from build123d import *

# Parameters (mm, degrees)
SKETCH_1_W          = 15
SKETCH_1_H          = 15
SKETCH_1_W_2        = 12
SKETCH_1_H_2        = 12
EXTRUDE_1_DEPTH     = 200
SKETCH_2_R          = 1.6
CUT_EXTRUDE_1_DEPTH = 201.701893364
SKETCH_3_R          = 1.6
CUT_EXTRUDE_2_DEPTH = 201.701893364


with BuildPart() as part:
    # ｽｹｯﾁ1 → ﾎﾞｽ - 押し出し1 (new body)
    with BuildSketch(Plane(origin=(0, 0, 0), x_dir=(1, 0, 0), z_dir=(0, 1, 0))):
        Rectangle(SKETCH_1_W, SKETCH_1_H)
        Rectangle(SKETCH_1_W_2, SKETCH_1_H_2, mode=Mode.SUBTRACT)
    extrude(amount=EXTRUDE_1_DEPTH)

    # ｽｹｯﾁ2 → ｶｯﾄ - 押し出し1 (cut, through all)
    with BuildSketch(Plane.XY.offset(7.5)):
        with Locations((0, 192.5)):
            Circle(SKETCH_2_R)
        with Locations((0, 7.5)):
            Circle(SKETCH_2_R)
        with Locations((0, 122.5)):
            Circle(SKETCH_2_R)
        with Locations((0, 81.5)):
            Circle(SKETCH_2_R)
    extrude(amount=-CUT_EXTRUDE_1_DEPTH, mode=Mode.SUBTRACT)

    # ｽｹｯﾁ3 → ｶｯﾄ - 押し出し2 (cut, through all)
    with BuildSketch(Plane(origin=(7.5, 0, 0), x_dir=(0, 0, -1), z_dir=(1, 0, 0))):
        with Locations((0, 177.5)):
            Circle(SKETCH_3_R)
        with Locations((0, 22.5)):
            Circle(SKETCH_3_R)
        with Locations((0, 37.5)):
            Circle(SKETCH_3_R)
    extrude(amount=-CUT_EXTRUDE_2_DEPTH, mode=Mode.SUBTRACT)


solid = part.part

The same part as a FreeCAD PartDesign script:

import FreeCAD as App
import Part
import Sketcher

V = App.Vector


def add_polygon(sketch, points):
    """Adds a closed chain of lines whose ends are joined by coincident constraints."""
    first, n = sketch.GeometryCount, len(points)
    for a, b in zip(points, points[1:] + points[:1]):
        sketch.addGeometry(Part.LineSegment(App.Vector(*a, 0), App.Vector(*b, 0)), False)
    for i in range(n):
        sketch.addConstraint(Sketcher.Constraint("Coincident", first + i, 2, first + (i + 1) % n, 1))

doc = App.newDocument("Part")
body = doc.addObject("PartDesign::Body", "Body")

# Sketch on XZ plane
sketch1 = body.newObject("Sketcher::SketchObject", "Sketch")
sketch1.AttachmentSupport = (doc.getObject("XZ_Plane"), [""])
sketch1.MapMode = "FlatFace"
add_polygon(sketch1, [(-8, -8), (-8, 8), (8, 8), (8, -8)])  # lines 0-3
add_polygon(sketch1, [(6, 6), (-6, 6), (-6, -6), (6, -6)])  # lines 4-7
sketch1.addConstraint([
    Sketcher.Constraint("Vertical", 0),
    Sketcher.Constraint("Horizontal", 1),
    Sketcher.Constraint("Vertical", 2),
    Sketcher.Constraint("Horizontal", 3),
    Sketcher.Constraint("Horizontal", 4),
    Sketcher.Constraint("Vertical", 5),
    Sketcher.Constraint("Horizontal", 6),
    Sketcher.Constraint("Vertical", 7),
    Sketcher.Constraint("Symmetric", 0, 2, 2, 2, -1, 1),
    Sketcher.Constraint("Symmetric", 4, 2, 6, 2, -1, 1),
    Sketcher.Constraint("Equal", 3, 0),
    Sketcher.Constraint("Equal", 6, 5),
    Sketcher.Constraint("DistanceX", 1, 1, 1, 2, 15.0),
    Sketcher.Constraint("DistanceX", 4, 2, 4, 1, 12.0),
])
pad1 = body.newObject("PartDesign::Pad", "Pad")
pad1.Profile = sketch1
pad1.Length = 200
pad1.Reversed = True

# Sketch on XY plane
sketch2 = body.newObject("Sketcher::SketchObject", "Sketch001")
sketch2.AttachmentSupport = (doc.getObject("XY_Plane"), [""])
sketch2.MapMode = "FlatFace"
sketch2.AttachmentOffset = App.Placement(V(0, 0, 7.5), App.Rotation())
sketch2.addGeometry([
    Part.Circle(V(0, 192.5, 0), V(0, 0, 1), 1.6),
    Part.Circle(V(0, 7.5, 0), V(0, 0, 1), 1.6),
    Part.Circle(V(0, 122.5, 0), V(0, 0, 1), 1.6),
    Part.Circle(V(0, 81.5, 0), V(0, 0, 1), 1.6),
], False)
sketch2.addConstraint([
    Sketcher.Constraint("Equal", 0, 1),
    Sketcher.Constraint("Equal", 1, 2),
    Sketcher.Constraint("Equal", 2, 3),
    Sketcher.Constraint("PointOnObject", 0, 3, -2),
    Sketcher.Constraint("PointOnObject", 1, 3, -2),
    Sketcher.Constraint("PointOnObject", 2, 3, -2),
    Sketcher.Constraint("PointOnObject", 3, 3, -2),
    Sketcher.Constraint("Diameter", 0, 3.2),
    Sketcher.Constraint("DistanceY", 1, 3, 0, 3, 185.0),
    Sketcher.Constraint("DistanceY", 2, 3, 0, 3, 70.0),
    Sketcher.Constraint("DistanceY", 3, 3, 2, 3, 41.0),
    Sketcher.Constraint("DistanceY", -1, 1, 0, 3, 192.5),
])
pocket1 = body.newObject("PartDesign::Pocket", "Pocket")
pocket1.Profile = sketch2
pocket1.Type = "ThroughAll"

# Sketch on YZ plane
sketch3 = body.newObject("Sketcher::SketchObject", "Sketch002")
sketch3.AttachmentSupport = (doc.getObject("YZ_Plane"), [""])
sketch3.MapMode = "FlatFace"
sketch3.AttachmentOffset = App.Placement(V(0, 0, 7.5), App.Rotation())
sketch3.addGeometry([
    Part.Circle(V(177.5, 0, 0), V(0, 0, 1), 1.6),
    Part.Circle(V(22.5, 0, 0), V(0, 0, 1), 1.6),
    Part.Circle(V(37.5, 0, 0), V(0, 0, 1), 1.6),
], False)
sketch3.addConstraint([
    Sketcher.Constraint("Equal", 0, 1),
    Sketcher.Constraint("Equal", 1, 2),
    Sketcher.Constraint("PointOnObject", 0, 3, -1),
    Sketcher.Constraint("PointOnObject", 1, 3, -1),
    Sketcher.Constraint("PointOnObject", 2, 3, -1),
    Sketcher.Constraint("Diameter", 0, 3.2),
    Sketcher.Constraint("DistanceX", 1, 3, 0, 3, 155.0),
    Sketcher.Constraint("DistanceX", 1, 3, 2, 3, 15.0),
    Sketcher.Constraint("DistanceX", -1, 1, 0, 3, 177.5),
])
pocket2 = body.newObject("PartDesign::Pocket", "Pocket001")
pocket2.Profile = sketch3
pocket2.Type = "ThroughAll"

doc.recompute()
